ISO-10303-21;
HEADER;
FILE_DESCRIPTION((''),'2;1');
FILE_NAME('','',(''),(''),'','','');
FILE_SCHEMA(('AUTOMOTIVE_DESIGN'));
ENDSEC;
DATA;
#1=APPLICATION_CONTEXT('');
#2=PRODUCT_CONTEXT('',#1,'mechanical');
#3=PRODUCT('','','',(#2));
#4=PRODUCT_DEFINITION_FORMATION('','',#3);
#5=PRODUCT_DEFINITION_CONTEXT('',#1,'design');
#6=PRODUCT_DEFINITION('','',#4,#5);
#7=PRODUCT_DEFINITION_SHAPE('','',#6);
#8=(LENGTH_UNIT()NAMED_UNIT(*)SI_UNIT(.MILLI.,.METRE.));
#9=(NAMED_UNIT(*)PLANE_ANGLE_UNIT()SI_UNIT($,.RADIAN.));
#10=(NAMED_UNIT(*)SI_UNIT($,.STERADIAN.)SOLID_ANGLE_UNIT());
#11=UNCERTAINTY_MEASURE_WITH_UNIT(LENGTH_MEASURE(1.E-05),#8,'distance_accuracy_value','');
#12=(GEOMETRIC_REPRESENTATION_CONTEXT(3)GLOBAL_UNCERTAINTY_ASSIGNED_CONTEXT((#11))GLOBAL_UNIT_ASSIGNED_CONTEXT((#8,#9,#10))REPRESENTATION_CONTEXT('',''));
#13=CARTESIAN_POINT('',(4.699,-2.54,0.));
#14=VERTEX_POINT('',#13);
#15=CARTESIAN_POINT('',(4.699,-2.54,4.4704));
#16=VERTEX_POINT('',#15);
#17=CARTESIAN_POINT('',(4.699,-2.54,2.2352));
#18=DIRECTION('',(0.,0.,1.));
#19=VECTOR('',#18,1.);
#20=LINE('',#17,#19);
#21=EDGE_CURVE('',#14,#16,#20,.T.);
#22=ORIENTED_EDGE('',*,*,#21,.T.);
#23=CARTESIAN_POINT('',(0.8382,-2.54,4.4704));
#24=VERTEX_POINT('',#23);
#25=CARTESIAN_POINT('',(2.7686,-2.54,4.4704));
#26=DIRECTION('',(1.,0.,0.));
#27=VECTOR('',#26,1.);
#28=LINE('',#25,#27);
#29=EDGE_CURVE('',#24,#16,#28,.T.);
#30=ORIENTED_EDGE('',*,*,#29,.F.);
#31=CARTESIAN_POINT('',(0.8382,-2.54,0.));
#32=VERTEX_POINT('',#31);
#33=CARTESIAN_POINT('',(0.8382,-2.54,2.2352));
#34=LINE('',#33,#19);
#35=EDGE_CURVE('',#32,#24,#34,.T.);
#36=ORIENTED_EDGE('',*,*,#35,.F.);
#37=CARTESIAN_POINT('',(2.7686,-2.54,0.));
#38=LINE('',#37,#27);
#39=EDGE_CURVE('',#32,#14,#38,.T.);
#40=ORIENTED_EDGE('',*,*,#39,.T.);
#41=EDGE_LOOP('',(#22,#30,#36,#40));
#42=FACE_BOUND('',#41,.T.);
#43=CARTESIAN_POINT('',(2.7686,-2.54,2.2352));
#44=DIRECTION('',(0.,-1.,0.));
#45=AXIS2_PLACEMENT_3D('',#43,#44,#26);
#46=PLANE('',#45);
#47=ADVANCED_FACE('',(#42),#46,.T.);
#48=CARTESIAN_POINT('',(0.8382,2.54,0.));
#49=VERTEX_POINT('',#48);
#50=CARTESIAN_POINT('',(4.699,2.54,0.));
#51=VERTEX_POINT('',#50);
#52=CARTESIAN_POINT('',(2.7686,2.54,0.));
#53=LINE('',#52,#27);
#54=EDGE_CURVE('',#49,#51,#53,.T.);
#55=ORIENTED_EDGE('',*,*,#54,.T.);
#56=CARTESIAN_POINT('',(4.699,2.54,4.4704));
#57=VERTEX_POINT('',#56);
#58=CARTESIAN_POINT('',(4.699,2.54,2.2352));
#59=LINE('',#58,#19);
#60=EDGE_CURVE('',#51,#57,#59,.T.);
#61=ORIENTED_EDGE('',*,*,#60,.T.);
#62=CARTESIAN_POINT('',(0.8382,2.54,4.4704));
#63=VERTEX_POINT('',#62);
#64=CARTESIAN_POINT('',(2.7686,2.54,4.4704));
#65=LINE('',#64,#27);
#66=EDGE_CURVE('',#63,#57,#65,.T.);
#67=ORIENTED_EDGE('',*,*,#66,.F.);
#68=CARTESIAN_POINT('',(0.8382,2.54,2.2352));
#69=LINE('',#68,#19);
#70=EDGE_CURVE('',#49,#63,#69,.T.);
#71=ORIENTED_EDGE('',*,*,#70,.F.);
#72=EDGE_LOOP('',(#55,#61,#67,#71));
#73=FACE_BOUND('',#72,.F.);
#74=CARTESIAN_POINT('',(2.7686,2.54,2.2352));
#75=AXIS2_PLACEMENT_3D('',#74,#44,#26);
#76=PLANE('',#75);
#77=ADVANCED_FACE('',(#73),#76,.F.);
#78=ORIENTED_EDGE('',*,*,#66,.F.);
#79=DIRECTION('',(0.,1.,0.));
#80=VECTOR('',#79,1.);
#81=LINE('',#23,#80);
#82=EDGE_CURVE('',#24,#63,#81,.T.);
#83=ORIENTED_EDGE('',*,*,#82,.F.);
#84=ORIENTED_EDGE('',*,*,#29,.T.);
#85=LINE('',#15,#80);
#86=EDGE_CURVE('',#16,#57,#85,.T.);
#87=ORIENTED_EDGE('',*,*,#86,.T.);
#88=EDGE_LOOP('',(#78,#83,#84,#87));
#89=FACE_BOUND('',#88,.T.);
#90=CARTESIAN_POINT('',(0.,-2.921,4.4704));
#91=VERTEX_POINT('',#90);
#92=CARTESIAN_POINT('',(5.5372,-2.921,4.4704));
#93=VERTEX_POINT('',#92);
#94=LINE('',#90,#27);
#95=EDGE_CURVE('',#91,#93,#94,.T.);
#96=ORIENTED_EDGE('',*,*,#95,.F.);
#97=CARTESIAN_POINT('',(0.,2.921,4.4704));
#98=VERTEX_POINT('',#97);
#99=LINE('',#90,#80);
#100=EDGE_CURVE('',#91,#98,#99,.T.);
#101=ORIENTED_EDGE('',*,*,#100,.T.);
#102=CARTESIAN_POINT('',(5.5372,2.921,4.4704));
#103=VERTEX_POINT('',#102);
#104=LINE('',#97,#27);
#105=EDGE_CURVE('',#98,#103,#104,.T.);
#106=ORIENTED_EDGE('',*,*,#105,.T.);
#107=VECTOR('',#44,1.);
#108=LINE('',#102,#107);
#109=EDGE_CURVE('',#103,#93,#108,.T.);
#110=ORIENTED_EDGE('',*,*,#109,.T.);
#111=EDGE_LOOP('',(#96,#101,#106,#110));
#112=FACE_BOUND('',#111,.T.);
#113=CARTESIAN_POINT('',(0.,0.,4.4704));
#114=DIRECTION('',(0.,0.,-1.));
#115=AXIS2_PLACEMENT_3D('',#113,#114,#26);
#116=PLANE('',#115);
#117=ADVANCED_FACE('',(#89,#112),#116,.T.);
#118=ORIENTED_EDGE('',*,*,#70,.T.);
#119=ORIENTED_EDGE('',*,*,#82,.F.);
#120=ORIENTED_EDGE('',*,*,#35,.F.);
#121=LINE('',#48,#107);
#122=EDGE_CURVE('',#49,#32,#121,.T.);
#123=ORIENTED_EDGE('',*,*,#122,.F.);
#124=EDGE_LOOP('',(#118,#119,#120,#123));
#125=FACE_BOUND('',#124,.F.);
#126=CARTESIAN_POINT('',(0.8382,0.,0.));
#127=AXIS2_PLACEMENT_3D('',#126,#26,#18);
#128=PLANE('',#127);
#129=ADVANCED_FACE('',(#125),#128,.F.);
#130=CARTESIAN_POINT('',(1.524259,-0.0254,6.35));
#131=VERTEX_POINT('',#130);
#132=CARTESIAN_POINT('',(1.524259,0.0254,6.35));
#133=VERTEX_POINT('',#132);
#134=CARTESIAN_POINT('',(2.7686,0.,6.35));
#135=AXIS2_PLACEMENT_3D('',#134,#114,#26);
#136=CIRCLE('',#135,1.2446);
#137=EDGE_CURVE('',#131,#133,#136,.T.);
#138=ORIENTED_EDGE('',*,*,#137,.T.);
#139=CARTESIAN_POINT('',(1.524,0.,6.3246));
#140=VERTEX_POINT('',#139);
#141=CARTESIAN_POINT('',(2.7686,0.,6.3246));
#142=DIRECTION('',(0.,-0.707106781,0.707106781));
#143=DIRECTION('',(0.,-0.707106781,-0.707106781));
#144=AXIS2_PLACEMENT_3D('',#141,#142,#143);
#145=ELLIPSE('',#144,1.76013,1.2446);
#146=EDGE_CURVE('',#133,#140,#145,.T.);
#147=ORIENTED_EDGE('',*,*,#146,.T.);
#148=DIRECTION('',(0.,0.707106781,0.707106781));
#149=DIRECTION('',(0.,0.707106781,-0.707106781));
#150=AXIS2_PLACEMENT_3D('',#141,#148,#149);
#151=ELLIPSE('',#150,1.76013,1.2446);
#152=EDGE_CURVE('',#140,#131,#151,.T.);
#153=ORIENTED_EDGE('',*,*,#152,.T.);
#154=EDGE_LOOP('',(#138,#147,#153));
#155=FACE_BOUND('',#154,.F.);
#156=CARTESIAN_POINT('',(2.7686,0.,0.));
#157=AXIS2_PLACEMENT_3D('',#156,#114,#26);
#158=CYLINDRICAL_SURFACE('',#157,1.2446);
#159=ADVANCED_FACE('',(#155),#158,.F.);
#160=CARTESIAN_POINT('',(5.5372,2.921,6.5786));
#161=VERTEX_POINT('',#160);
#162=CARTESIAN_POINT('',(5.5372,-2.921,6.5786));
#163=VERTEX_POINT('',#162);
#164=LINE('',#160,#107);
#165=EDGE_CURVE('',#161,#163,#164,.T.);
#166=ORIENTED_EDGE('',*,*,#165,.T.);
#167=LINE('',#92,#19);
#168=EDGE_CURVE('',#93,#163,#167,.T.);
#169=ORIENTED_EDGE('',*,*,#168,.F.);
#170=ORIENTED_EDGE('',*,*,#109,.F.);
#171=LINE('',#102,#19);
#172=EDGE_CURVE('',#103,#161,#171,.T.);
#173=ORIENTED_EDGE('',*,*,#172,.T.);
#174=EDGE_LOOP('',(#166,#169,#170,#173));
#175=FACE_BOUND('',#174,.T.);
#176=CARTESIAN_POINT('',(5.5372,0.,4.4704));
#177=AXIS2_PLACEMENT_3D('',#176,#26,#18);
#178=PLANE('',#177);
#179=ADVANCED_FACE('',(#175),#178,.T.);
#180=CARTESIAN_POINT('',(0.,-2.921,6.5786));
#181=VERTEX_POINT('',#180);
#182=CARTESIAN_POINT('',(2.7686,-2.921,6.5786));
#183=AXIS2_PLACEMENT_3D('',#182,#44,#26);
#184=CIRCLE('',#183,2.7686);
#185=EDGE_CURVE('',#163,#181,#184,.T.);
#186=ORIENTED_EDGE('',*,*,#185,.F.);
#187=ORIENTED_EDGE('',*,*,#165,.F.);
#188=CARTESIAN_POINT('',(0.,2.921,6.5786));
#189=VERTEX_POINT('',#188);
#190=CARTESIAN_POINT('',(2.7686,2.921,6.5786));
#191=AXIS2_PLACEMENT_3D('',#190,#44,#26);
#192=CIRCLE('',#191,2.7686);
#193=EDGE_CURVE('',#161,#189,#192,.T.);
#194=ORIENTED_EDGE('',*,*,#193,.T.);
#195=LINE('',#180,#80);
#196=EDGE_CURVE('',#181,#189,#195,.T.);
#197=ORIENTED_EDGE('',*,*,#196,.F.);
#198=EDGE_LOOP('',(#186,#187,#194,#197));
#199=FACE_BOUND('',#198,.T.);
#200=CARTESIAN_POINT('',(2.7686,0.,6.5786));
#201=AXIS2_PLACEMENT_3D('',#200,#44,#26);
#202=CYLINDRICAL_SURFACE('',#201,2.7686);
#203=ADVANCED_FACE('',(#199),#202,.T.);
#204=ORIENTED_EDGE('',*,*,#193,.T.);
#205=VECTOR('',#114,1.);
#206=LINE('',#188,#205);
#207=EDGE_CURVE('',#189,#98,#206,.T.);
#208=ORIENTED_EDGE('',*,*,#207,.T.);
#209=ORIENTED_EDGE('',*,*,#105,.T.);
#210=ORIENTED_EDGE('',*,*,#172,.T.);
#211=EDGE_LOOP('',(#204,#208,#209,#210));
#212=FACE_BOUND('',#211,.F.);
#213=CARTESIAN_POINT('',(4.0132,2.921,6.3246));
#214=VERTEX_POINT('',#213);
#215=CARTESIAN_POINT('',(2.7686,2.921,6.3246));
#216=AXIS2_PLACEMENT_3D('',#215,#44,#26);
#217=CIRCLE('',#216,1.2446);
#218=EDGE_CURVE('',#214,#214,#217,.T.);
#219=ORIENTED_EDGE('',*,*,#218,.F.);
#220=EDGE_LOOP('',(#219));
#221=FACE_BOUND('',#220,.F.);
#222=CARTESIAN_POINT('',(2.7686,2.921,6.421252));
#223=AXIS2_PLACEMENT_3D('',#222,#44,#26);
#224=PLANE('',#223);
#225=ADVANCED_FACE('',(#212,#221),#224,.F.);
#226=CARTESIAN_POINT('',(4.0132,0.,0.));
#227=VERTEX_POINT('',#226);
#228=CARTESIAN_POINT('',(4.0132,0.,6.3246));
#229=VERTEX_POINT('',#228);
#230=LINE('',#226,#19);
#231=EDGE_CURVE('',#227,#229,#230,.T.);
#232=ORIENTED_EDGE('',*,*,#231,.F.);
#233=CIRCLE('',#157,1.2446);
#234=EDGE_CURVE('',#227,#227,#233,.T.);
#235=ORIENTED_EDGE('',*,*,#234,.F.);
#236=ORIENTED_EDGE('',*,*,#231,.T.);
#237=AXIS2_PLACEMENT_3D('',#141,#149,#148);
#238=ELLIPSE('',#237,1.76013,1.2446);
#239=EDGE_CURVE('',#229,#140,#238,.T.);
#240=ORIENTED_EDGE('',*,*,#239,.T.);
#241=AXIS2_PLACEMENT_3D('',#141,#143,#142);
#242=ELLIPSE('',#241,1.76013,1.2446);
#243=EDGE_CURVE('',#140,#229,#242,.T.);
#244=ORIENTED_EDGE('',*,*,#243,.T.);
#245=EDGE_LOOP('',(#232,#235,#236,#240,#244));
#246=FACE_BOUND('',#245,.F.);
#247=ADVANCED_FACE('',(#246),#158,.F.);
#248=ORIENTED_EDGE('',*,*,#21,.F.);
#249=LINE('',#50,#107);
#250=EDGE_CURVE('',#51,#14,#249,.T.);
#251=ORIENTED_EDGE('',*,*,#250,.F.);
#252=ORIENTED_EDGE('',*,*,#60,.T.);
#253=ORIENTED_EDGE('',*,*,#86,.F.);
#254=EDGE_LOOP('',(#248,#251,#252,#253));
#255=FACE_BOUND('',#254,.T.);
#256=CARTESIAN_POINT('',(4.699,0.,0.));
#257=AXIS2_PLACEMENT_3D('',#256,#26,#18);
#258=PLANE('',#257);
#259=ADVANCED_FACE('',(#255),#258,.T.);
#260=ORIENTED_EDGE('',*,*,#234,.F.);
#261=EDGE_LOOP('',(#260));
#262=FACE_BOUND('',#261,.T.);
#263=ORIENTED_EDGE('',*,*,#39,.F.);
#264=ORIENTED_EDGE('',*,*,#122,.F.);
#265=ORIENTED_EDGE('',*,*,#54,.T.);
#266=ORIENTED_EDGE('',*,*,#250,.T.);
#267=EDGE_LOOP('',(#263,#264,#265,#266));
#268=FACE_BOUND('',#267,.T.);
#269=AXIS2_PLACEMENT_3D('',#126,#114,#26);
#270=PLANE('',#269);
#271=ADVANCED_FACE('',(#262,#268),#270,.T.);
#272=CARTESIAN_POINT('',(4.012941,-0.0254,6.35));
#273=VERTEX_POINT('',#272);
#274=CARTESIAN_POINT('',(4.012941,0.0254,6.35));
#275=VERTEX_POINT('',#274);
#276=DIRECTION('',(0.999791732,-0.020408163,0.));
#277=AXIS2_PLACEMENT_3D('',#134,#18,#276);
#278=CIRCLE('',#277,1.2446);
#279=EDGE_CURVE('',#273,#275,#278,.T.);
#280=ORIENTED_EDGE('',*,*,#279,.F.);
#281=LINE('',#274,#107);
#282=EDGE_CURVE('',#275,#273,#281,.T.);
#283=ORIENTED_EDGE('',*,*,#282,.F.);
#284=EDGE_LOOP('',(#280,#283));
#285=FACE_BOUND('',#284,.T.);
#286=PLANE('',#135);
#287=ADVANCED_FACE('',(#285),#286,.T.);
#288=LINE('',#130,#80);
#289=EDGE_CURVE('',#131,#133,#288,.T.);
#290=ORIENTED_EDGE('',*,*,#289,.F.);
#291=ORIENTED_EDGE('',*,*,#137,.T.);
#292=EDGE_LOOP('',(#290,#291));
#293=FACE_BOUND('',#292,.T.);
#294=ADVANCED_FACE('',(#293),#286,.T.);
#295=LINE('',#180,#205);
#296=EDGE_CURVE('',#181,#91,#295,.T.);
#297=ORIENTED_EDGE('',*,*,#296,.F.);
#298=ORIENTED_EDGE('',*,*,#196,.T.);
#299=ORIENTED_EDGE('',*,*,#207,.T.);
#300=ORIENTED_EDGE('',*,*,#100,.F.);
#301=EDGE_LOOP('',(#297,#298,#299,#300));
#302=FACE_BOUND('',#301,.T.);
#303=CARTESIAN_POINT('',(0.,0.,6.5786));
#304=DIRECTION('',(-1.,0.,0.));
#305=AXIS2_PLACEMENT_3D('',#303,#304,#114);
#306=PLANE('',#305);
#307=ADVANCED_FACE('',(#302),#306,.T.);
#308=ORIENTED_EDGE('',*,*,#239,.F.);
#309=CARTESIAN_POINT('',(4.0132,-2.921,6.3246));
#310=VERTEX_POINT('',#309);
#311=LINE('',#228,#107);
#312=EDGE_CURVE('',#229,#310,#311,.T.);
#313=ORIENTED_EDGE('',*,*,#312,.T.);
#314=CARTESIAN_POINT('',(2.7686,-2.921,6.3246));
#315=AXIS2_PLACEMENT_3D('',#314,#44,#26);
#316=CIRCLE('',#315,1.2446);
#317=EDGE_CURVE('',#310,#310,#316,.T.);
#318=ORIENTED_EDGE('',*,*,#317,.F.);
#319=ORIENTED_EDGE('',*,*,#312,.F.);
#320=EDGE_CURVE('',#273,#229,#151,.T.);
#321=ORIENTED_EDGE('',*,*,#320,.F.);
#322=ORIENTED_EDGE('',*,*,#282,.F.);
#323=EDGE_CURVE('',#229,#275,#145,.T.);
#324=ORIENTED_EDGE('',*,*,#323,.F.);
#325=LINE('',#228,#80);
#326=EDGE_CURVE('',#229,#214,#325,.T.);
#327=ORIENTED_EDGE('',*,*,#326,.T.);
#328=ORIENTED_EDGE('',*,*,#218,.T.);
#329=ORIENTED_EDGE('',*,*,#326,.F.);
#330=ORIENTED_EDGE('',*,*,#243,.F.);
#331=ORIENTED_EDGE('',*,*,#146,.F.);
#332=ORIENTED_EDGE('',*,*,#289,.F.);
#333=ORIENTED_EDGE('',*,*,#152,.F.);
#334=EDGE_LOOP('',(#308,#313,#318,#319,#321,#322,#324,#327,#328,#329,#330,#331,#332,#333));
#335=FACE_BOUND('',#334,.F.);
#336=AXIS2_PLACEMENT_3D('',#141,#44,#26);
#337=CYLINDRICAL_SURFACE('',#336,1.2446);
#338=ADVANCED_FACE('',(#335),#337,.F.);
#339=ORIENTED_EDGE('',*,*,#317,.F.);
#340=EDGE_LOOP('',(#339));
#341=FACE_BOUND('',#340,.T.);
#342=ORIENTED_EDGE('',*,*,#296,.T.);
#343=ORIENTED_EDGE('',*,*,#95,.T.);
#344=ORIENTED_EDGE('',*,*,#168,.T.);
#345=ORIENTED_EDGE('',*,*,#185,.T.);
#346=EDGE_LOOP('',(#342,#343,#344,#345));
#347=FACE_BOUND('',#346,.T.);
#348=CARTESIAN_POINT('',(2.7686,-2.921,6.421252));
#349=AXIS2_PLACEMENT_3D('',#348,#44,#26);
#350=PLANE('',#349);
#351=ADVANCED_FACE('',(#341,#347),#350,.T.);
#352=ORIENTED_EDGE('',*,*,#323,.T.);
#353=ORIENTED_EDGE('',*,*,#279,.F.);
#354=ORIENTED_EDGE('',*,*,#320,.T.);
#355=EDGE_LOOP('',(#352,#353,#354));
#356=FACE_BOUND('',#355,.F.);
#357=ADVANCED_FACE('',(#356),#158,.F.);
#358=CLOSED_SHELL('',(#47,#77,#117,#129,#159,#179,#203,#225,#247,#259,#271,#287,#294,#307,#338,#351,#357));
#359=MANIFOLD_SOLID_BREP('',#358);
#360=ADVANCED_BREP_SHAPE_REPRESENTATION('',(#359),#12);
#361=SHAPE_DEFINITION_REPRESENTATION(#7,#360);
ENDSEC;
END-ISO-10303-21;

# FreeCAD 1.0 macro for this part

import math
import FreeCAD as App
import Part
import Sketcher
from FreeCAD import Vector
Q = App.Units.Quantity

doc = App.newDocument("Part")
params = doc.addObject("Spreadsheet::Sheet", "Params")
for row, (alias, value) in enumerate([
    ("sketch1_diameter", "0.098 in"),
    ("sketch1_radius", "0.109 in"),
    ("sketch1_height", "0.083 in"),
    ("pad1_length", "0.115 in"),
    ("sketch2_width", "0.152 in"),
    ("sketch2_height", "0.176 in"),
    ("pad2_length", "0.1 in"),
    ("sketch3_diameter", "0.098 in"),
    ("sketch3_radius", "0.109 in"),
    ("sketch3_height", "0.083 in"),
    ("pad3_length", "0.115 in"),
    ("sketch4_width", "0.152 in"),
    ("sketch4_height", "0.176 in"),
    ("pad4_length", "0.1 in"),
    ("sketch5_diameter", "0.098 in"),
    ("pocket1_length", "0.25 in"),
], start=1):
    params.set(f"A{row}", alias)
    params.set(f"B{row}", "=" + value)
    params.setAlias(f"B{row}", alias)

body = doc.addObject("PartDesign::Body", "Body")

sketch1 = body.newObject("Sketcher::SketchObject", "Sketch")
sketch1.AttachmentSupport = (doc.getObject("XZ_Plane"), [""])
sketch1.MapMode = "FlatFace"
sketch1.addGeometry(Part.LineSegment(Vector(0, 4.5, 0), Vector(5.5, 4.5, 0)), False)
sketch1.addGeometry(Part.LineSegment(Vector(5.5, 4.5, 0), Vector(5.5, 6.6, 0)), False)
sketch1.addGeometry(Part.ArcOfCircle(Part.Circle(Vector(2.8, 6.6, 0), Vector(0, 0, 1), 2.8), math.radians(0), math.radians(180)), False)
sketch1.addGeometry(Part.LineSegment(Vector(0, 6.6, 0), Vector(0, 4.5, 0)), False)
sketch1.addGeometry(Part.Circle(Vector(2.8, 6.3, 0), Vector(0, 0, 1), 1.2), False)
sketch1.addConstraint(Sketcher.Constraint("Coincident", 0, 2, 1, 1))
sketch1.addConstraint(Sketcher.Constraint("Tangent", 1, 2, 2, 1))
sketch1.addConstraint(Sketcher.Constraint("Tangent", 2, 2, 3, 1))
sketch1.addConstraint(Sketcher.Constraint("Coincident", 3, 2, 0, 1))
sketch1.addConstraint(Sketcher.Constraint("Horizontal", 0))
sketch1.addConstraint(Sketcher.Constraint("Vertical", 1))
sketch1.addConstraint(Sketcher.Constraint("Vertical", 3))
sketch1.addConstraint(Sketcher.Constraint("PointOnObject", 2, 2, -2))
sketch1.addConstraint(Sketcher.Constraint("Vertical", 2, 3, 4, 3))
sketch1.addConstraint(Sketcher.Constraint("Diameter", 4, Q("0.098 in")))
sketch1.addConstraint(Sketcher.Constraint("Radius", 2, Q("0.109 in")))
sketch1.addConstraint(Sketcher.Constraint("DistanceY", 1, 1, 1, 2, Q("0.083 in")))
sketch1.addConstraint(Sketcher.Constraint("DistanceY", 4, 3, 2, 3, Q("0.01 in")))
sketch1.addConstraint(Sketcher.Constraint("DistanceY", -1, 1, 2, 3, Q("0.259 in")))
sketch1.setExpression("Constraints[9]", "Params.sketch1_diameter")
sketch1.setExpression("Constraints[10]", "Params.sketch1_radius")
sketch1.setExpression("Constraints[11]", "Params.sketch1_height")
pad1 = body.newObject("PartDesign::Pad", "Pad")
pad1.Profile = sketch1
pad1.setExpression("Length", "Params.pad1_length")

sketch2 = body.newObject("Sketcher::SketchObject", "Sketch001")
sketch2.AttachmentSupport = (doc.getObject("XZ_Plane"), [""])
sketch2.MapMode = "FlatFace"
sketch2.addGeometry(Part.LineSegment(Vector(0.8, 4.5, 0), Vector(0.8, 0, 0)), False)
sketch2.addGeometry(Part.LineSegment(Vector(0.8, 0, 0), Vector(4.7, 0, 0)), False)
sketch2.addGeometry(Part.LineSegment(Vector(4.7, 0, 0), Vector(4.7, 4.5, 0)), False)
sketch2.addGeometry(Part.LineSegment(Vector(4.7, 4.5, 0), Vector(0.8, 4.5, 0)), False)
sketch2.addConstraint(Sketcher.Constraint("Coincident", 0, 2, 1, 1))
sketch2.addConstraint(Sketcher.Constraint("Coincident", 1, 2, 2, 1))
sketch2.addConstraint(Sketcher.Constraint("Coincident", 2, 2, 3, 1))
sketch2.addConstraint(Sketcher.Constraint("Coincident", 3, 2, 0, 1))
sketch2.addConstraint(Sketcher.Constraint("Vertical", 0))
sketch2.addConstraint(Sketcher.Constraint("Horizontal", 1))
sketch2.addConstraint(Sketcher.Constraint("Vertical", 2))
sketch2.addConstraint(Sketcher.Constraint("Horizontal", 3))
sketch2.addConstraint(Sketcher.Constraint("PointOnObject", 0, 2, -1))
sketch2.addConstraint(Sketcher.Constraint("DistanceX", 1, 1, 1, 2, Q("0.152 in")))
sketch2.addConstraint(Sketcher.Constraint("DistanceY", 0, 2, 0, 1, Q("0.176 in")))
sketch2.addConstraint(Sketcher.Constraint("DistanceX", -1, 1, 0, 2, Q("0.033 in")))
sketch2.setExpression("Constraints[9]", "Params.sketch2_width")
sketch2.setExpression("Constraints[10]", "Params.sketch2_height")
pad2 = body.newObject("PartDesign::Pad", "Pad001")
pad2.Profile = sketch2
pad2.setExpression("Length", "Params.pad2_length")

sketch3 = body.newObject("Sketcher::SketchObject", "Sketch002")
sketch3.AttachmentSupport = (doc.getObject("XZ_Plane"), [""])
sketch3.MapMode = "FlatFace"
sketch3.addGeometry(Part.LineSegment(Vector(0, 4.5, 0), Vector(5.5, 4.5, 0)), False)
sketch3.addGeometry(Part.LineSegment(Vector(5.5, 4.5, 0), Vector(5.5, 6.6, 0)), False)
sketch3.addGeometry(Part.ArcOfCircle(Part.Circle(Vector(2.8, 6.6, 0), Vector(0, 0, 1), 2.8), math.radians(0), math.radians(180)), False)
sketch3.addGeometry(Part.LineSegment(Vector(0, 6.6, 0), Vector(0, 4.5, 0)), False)
sketch3.addGeometry(Part.Circle(Vector(2.8, 6.3, 0), Vector(0, 0, 1), 1.2), False)
sketch3.addConstraint(Sketcher.Constraint("Coincident", 0, 2, 1, 1))
sketch3.addConstraint(Sketcher.Constraint("Tangent", 1, 2, 2, 1))
sketch3.addConstraint(Sketcher.Constraint("Tangent", 2, 2, 3, 1))
sketch3.addConstraint(Sketcher.Constraint("Coincident", 3, 2, 0, 1))
sketch3.addConstraint(Sketcher.Constraint("Horizontal", 0))
sketch3.addConstraint(Sketcher.Constraint("Vertical", 1))
sketch3.addConstraint(Sketcher.Constraint("Vertical", 3))
sketch3.addConstraint(Sketcher.Constraint("PointOnObject", 2, 2, -2))
sketch3.addConstraint(Sketcher.Constraint("Vertical", 2, 3, 4, 3))
sketch3.addConstraint(Sketcher.Constraint("Diameter", 4, Q("0.098 in")))
sketch3.addConstraint(Sketcher.Constraint("Radius", 2, Q("0.109 in")))
sketch3.addConstraint(Sketcher.Constraint("DistanceY", 1, 1, 1, 2, Q("0.083 in")))
sketch3.addConstraint(Sketcher.Constraint("DistanceY", 4, 3, 2, 3, Q("0.01 in")))
sketch3.addConstraint(Sketcher.Constraint("DistanceY", -1, 1, 2, 3, Q("0.259 in")))
sketch3.setExpression("Constraints[9]", "Params.sketch3_diameter")
sketch3.setExpression("Constraints[10]", "Params.sketch3_radius")
sketch3.setExpression("Constraints[11]", "Params.sketch3_height")
pad3 = body.newObject("PartDesign::Pad", "Pad002")
pad3.Profile = sketch3
pad3.setExpression("Length", "Params.pad3_length")
pad3.Reversed = True

sketch4 = body.newObject("Sketcher::SketchObject", "Sketch003")
sketch4.AttachmentSupport = (doc.getObject("XZ_Plane"), [""])
sketch4.MapMode = "FlatFace"
sketch4.addGeometry(Part.LineSegment(Vector(0.8, 4.5, 0), Vector(0.8, 0, 0)), False)
sketch4.addGeometry(Part.LineSegment(Vector(0.8, 0, 0), Vector(4.7, 0, 0)), False)
sketch4.addGeometry(Part.LineSegment(Vector(4.7, 0, 0), Vector(4.7, 4.5, 0)), False)
sketch4.addGeometry(Part.LineSegment(Vector(4.7, 4.5, 0), Vector(0.8, 4.5, 0)), False)
sketch4.addConstraint(Sketcher.Constraint("Coincident", 0, 2, 1, 1))
sketch4.addConstraint(Sketcher.Constraint("Coincident", 1, 2, 2, 1))
sketch4.addConstraint(Sketcher.Constraint("Coincident", 2, 2, 3, 1))
sketch4.addConstraint(Sketcher.Constraint("Coincident", 3, 2, 0, 1))
sketch4.addConstraint(Sketcher.Constraint("Vertical", 0))
sketch4.addConstraint(Sketcher.Constraint("Horizontal", 1))
sketch4.addConstraint(Sketcher.Constraint("Vertical", 2))
sketch4.addConstraint(Sketcher.Constraint("Horizontal", 3))
sketch4.addConstraint(Sketcher.Constraint("PointOnObject", 0, 2, -1))
sketch4.addConstraint(Sketcher.Constraint("DistanceX", 1, 1, 1, 2, Q("0.152 in")))
sketch4.addConstraint(Sketcher.Constraint("DistanceY", 0, 2, 0, 1, Q("0.176 in")))
sketch4.addConstraint(Sketcher.Constraint("DistanceX", -1, 1, 0, 2, Q("0.033 in")))
sketch4.setExpression("Constraints[9]", "Params.sketch4_width")
sketch4.setExpression("Constraints[10]", "Params.sketch4_height")
pad4 = body.newObject("PartDesign::Pad", "Pad003")
pad4.Profile = sketch4
pad4.setExpression("Length", "Params.pad4_length")
pad4.Reversed = True

sketch5 = body.newObject("Sketcher::SketchObject", "Sketch004")
sketch5.AttachmentSupport = (doc.getObject("XY_Plane"), [""])
sketch5.MapMode = "FlatFace"
sketch5.addGeometry(Part.Circle(Vector(2.8, 0, 0), Vector(0, 0, 1), 1.2), False)
sketch5.addConstraint(Sketcher.Constraint("PointOnObject", 0, 3, -1))
sketch5.addConstraint(Sketcher.Constraint("Diameter", 0, Q("0.098 in")))
sketch5.addConstraint(Sketcher.Constraint("DistanceX", -1, 1, 0, 3, Q("0.109 in")))
sketch5.setExpression("Constraints[1]", "Params.sketch5_diameter")
pocket1 = body.newObject("PartDesign::Pocket", "Pocket")
pocket1.Profile = sketch5
pocket1.setExpression("Length", "Params.pocket1_length")
pocket1.Reversed = True

doc.recompute()
